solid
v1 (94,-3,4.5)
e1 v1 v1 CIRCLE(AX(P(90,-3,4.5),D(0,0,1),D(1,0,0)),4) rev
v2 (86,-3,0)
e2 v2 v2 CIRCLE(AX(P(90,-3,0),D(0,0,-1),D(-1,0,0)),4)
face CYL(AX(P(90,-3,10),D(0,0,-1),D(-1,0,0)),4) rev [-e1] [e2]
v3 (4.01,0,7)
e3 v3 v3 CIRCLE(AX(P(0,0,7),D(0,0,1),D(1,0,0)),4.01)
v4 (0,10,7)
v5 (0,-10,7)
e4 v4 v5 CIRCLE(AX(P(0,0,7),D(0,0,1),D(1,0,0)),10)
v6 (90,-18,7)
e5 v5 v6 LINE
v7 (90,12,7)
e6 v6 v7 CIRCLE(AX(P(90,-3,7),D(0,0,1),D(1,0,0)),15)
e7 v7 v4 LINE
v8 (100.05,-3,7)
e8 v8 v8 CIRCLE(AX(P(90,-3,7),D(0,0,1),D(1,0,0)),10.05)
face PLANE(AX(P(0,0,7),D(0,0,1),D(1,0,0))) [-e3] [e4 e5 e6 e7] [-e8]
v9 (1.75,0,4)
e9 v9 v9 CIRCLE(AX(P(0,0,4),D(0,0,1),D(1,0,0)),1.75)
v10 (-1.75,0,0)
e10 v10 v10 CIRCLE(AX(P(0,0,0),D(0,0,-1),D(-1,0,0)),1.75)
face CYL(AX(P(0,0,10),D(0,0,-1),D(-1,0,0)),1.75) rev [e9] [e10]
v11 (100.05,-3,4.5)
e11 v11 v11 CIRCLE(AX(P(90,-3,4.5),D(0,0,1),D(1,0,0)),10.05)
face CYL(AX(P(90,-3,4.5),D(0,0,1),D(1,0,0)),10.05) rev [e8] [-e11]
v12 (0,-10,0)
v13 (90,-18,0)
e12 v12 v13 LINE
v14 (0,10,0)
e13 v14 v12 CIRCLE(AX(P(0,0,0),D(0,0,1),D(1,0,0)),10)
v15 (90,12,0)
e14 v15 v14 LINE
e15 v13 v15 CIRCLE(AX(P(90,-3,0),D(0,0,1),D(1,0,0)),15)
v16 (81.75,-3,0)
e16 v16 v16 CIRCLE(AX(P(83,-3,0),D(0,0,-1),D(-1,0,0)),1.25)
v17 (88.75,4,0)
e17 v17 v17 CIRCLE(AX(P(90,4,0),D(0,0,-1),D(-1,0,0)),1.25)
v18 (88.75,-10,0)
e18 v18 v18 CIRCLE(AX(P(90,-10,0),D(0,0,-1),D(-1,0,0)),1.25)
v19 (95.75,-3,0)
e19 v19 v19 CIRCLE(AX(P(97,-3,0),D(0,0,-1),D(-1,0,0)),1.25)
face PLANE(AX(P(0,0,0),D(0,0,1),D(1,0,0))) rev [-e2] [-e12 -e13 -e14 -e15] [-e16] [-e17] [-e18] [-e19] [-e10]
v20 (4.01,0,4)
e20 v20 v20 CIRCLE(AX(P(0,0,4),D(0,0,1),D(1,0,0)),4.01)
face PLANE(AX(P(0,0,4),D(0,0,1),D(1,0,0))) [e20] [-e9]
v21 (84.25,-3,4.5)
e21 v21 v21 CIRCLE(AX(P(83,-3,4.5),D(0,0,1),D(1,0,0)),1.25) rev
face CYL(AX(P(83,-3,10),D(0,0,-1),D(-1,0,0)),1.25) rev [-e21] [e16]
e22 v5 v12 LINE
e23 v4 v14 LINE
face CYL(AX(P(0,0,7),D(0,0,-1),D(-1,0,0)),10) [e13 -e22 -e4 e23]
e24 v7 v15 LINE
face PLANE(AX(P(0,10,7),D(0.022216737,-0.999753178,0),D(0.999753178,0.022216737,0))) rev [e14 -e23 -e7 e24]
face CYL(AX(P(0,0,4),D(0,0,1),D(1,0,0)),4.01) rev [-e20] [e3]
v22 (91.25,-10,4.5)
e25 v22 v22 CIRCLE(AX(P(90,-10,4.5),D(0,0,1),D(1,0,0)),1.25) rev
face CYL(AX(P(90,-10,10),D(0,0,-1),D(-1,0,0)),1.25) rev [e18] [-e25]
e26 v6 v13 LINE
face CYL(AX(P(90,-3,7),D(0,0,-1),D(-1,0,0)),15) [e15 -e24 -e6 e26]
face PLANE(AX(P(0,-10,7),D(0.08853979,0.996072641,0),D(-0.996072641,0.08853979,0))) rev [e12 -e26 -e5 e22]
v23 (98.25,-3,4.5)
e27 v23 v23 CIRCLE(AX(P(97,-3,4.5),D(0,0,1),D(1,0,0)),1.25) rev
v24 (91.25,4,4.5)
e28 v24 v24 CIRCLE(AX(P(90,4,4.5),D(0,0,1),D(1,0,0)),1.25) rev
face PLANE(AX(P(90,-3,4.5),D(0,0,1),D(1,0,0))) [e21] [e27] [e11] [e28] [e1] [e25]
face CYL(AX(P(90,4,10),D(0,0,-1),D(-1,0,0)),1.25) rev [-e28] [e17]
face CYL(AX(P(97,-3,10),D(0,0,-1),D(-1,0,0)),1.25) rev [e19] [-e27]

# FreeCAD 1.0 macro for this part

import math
import FreeCAD as App
import Part
import Sketcher
from FreeCAD import Vector
Q = App.Units.Quantity

doc = App.newDocument("Part")
body = doc.addObject("PartDesign::Body", "Body")

# Sketch on XY plane
sketch1 = body.newObject("Sketcher::SketchObject", "Sketch")
sketch1.AttachmentSupport = (doc.getObject("XY_Plane"), [""])
sketch1.MapMode = "FlatFace"
sketch1.addGeometry(Part.LineSegment(Vector(0, -10, 0), Vector(90, -18, 0)), False)
sketch1.addGeometry(Part.ArcOfCircle(Part.Circle(Vector(90, -3, 0), Vector(0, 0, 1), 15), math.radians(-90), math.radians(90)), False)
sketch1.addGeometry(Part.LineSegment(Vector(90, 12, 0), Vector(0, 10, 0)), False)
sketch1.addGeometry(Part.ArcOfCircle(Part.Circle(Vector(0, 0, 0), Vector(0, 0, 1), 10), math.radians(90), math.radians(270)), False)
sketch1.addConstraint(Sketcher.Constraint("Coincident", 0, 2, 1, 1))
sketch1.addConstraint(Sketcher.Constraint("Coincident", 1, 2, 2, 1))
sketch1.addConstraint(Sketcher.Constraint("Coincident", 2, 2, 3, 1))
sketch1.addConstraint(Sketcher.Constraint("Coincident", 3, 2, 0, 1))
sketch1.addConstraint(Sketcher.Constraint("Coincident", 3, 3, -1, 1))
sketch1.addConstraint(Sketcher.Constraint("PointOnObject", 2, 2, -2))
sketch1.addConstraint(Sketcher.Constraint("PointOnObject", 3, 2, -2))
sketch1.addConstraint(Sketcher.Constraint("Vertical", 1, 3, 0, 2))
sketch1.addConstraint(Sketcher.Constraint("Vertical", 0, 2, 1, 2))
sketch1.addConstraint(Sketcher.Constraint("Radius", 1, Q("15 mm")))
sketch1.addConstraint(Sketcher.Constraint("Radius", 3, Q("10 mm")))
sketch1.addConstraint(Sketcher.Constraint("DistanceX", -1, 1, 1, 3, Q("90 mm")))
sketch1.addConstraint(Sketcher.Constraint("DistanceY", 1, 3, -1, 1, Q("3 mm")))
pad1 = body.newObject("PartDesign::Pad", "Pad")
pad1.Profile = sketch1
pad1.Length = 7

# Sketch on XY plane
sketch2 = body.newObject("Sketcher::SketchObject", "Sketch001")
sketch2.AttachmentSupport = (doc.getObject("XY_Plane"), [""])
sketch2.MapMode = "FlatFace"
sketch2.addGeometry(Part.Circle(Vector(0, 0, 0), Vector(0, 0, 1), 4.1), False)
sketch2.addGeometry(Part.Circle(Vector(90, -10, 0), Vector(0, 0, 1), 1.2), False)
sketch2.addGeometry(Part.Circle(Vector(83, -3, 0), Vector(0, 0, 1), 1.2), False)
sketch2.addGeometry(Part.Circle(Vector(90, 4, 0), Vector(0, 0, 1), 1.2), False)
sketch2.addGeometry(Part.Circle(Vector(97, -3, 0), Vector(0, 0, 1), 1.2), False)
sketch2.addGeometry(Part.Circle(Vector(90, -3, 0), Vector(0, 0, 1), 4), False)
sketch2.addConstraint(Sketcher.Constraint("Coincident", 0, 3, -1, 1))
sketch2.addConstraint(Sketcher.Constraint("Equal", 1, 2))
sketch2.addConstraint(Sketcher.Constraint("Equal", 2, 3))
sketch2.addConstraint(Sketcher.Constraint("Equal", 3, 4))
sketch2.addConstraint(Sketcher.Constraint("Horizontal", 2, 3, 4, 3))
sketch2.addConstraint(Sketcher.Constraint("Horizontal", 4, 3, 5, 3))
sketch2.addConstraint(Sketcher.Constraint("Vertical", 1, 3, 3, 3))
sketch2.addConstraint(Sketcher.Constraint("Vertical", 3, 3, 5, 3))
sketch2.addConstraint(Sketcher.Constraint("Diameter", 5, Q("8 mm")))
sketch2.addConstraint(Sketcher.Constraint("Diameter", 0, Q("8.2 mm")))
sketch2.addConstraint(Sketcher.Constraint("Diameter", 1, Q("2.5 mm")))
sketch2.addConstraint(Sketcher.Constraint("DistanceX", -1, 1, 1, 3, Q("90 mm")))
sketch2.addConstraint(Sketcher.Constraint("DistanceY", 1, 3, -1, 1, Q("10 mm")))
sketch2.addConstraint(Sketcher.Constraint("DistanceX", -1, 1, 2, 3, Q("83 mm")))
sketch2.addConstraint(Sketcher.Constraint("DistanceY", 2, 3, -1, 1, Q("3 mm")))
sketch2.addConstraint(Sketcher.Constraint("DistanceY", -1, 1, 3, 3, Q("4 mm")))
sketch2.addConstraint(Sketcher.Constraint("DistanceX", -1, 1, 4, 3, Q("97 mm")))
pocket1 = body.newObject("PartDesign::Pocket", "Pocket")
pocket1.Profile = sketch2
pocket1.Length = 10
pocket1.Reversed = True

# Sketch on XY plane
sketch3 = body.newObject("Sketcher::SketchObject", "Sketch002")
sketch3.AttachmentSupport = (doc.getObject("XY_Plane"), [""])
sketch3.MapMode = "FlatFace"
sketch3.AttachmentOffset = App.Placement(Vector(0, 0, 7), App.Rotation())
sketch3.addGeometry(Part.Circle(Vector(90, -3, 0), Vector(0, 0, 1), 10), False)
sketch3.addConstraint(Sketcher.Constraint("Diameter", 0, Q("20.1 mm")))
sketch3.addConstraint(Sketcher.Constraint("DistanceX", -1, 1, 0, 3, Q("90 mm")))
sketch3.addConstraint(Sketcher.Constraint("DistanceY", 0, 3, -1, 1, Q("3 mm")))
pocket2 = body.newObject("PartDesign::Pocket", "Pocket001")
pocket2.Profile = sketch3
pocket2.Length = 2.5

# Sketch on XY plane
sketch4 = body.newObject("Sketcher::SketchObject", "Sketch003")
sketch4.AttachmentSupport = (doc.getObject("XY_Plane"), [""])
sketch4.MapMode = "FlatFace"
sketch4.addGeometry(Part.Circle(Vector(0, 0, 0), Vector(0, 0, 1), 4.1), False)
sketch4.addConstraint(Sketcher.Constraint("Coincident", 0, 3, -1, 1))
sketch4.addConstraint(Sketcher.Constraint("Diameter", 0, Q("8.2 mm")))
pad2 = body.newObject("PartDesign::Pad", "Pad001")
pad2.Profile = sketch4
pad2.Length = 7

# Sketch on XY plane
sketch5 = body.newObject("Sketcher::SketchObject", "Sketch004")
sketch5.AttachmentSupport = (doc.getObject("XY_Plane"), [""])
sketch5.MapMode = "FlatFace"
sketch5.AttachmentOffset = App.Placement(Vector(0, 0, 7), App.Rotation())
sketch5.addGeometry(Part.Circle(Vector(0, 0, 0), Vector(0, 0, 1), 4), False)
sketch5.addConstraint(Sketcher.Constraint("Coincident", 0, 3, -1, 1))
sketch5.addConstraint(Sketcher.Constraint("Diameter", 0, Q("8.02 mm")))
pocket3 = body.newObject("PartDesign::Pocket", "Pocket002")
pocket3.Profile = sketch5
pocket3.Length = 3

# Sketch on XY plane
sketch6 = body.newObject("Sketcher::SketchObject", "Sketch005")
sketch6.AttachmentSupport = (doc.getObject("XY_Plane"), [""])
sketch6.MapMode = "FlatFace"
sketch6.addGeometry(Part.Circle(Vector(0, 0, 0), Vector(0, 0, 1), 1.8), False)
sketch6.addConstraint(Sketcher.Constraint("Coincident", 0, 3, -1, 1))
sketch6.addConstraint(Sketcher.Constraint("Diameter", 0, Q("3.5 mm")))
pocket4 = body.newObject("PartDesign::Pocket", "Pocket003")
pocket4.Profile = sketch6
pocket4.Length = 10
pocket4.Reversed = True

doc.recompute()
